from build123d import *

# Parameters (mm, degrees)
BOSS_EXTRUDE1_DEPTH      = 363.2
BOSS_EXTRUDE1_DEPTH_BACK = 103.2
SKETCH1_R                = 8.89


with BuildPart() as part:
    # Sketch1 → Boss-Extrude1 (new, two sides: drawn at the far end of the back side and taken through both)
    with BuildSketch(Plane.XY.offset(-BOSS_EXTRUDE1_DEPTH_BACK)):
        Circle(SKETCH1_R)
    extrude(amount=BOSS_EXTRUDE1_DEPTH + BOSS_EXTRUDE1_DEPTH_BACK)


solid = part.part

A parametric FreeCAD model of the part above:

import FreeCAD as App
import Part
import Sketcher
Q = App.Units.Quantity

doc = App.newDocument("Part")
body = doc.addObject("PartDesign::Body", "Body")

# Sketch on XY plane
sketch1 = doc.addObject("Sketcher::SketchObject", "Sketch")
body.addObject(sketch1)
sketch1.AttachmentSupport = (doc.XY_Plane, [""])
sketch1.MapMode = "FlatFace"
sketch1.addGeometry(Part.Circle(App.Vector(0, 0, 0), App.Vector(0, 0, 1), 9), False)
sketch1.addConstraint([
    Sketcher.Constraint("Coincident", 0, 3, -1, 1),
    Sketcher.Constraint("Diameter", 0, Q("17.78 mm")),
])
pad1 = doc.addObject("PartDesign::Pad", "Pad")
body.addObject(pad1)
pad1.Profile = sketch1
pad1.Type = "TwoLengths"
pad1.Length = 363.2
pad1.Length2 = 103.2

doc.recompute()
